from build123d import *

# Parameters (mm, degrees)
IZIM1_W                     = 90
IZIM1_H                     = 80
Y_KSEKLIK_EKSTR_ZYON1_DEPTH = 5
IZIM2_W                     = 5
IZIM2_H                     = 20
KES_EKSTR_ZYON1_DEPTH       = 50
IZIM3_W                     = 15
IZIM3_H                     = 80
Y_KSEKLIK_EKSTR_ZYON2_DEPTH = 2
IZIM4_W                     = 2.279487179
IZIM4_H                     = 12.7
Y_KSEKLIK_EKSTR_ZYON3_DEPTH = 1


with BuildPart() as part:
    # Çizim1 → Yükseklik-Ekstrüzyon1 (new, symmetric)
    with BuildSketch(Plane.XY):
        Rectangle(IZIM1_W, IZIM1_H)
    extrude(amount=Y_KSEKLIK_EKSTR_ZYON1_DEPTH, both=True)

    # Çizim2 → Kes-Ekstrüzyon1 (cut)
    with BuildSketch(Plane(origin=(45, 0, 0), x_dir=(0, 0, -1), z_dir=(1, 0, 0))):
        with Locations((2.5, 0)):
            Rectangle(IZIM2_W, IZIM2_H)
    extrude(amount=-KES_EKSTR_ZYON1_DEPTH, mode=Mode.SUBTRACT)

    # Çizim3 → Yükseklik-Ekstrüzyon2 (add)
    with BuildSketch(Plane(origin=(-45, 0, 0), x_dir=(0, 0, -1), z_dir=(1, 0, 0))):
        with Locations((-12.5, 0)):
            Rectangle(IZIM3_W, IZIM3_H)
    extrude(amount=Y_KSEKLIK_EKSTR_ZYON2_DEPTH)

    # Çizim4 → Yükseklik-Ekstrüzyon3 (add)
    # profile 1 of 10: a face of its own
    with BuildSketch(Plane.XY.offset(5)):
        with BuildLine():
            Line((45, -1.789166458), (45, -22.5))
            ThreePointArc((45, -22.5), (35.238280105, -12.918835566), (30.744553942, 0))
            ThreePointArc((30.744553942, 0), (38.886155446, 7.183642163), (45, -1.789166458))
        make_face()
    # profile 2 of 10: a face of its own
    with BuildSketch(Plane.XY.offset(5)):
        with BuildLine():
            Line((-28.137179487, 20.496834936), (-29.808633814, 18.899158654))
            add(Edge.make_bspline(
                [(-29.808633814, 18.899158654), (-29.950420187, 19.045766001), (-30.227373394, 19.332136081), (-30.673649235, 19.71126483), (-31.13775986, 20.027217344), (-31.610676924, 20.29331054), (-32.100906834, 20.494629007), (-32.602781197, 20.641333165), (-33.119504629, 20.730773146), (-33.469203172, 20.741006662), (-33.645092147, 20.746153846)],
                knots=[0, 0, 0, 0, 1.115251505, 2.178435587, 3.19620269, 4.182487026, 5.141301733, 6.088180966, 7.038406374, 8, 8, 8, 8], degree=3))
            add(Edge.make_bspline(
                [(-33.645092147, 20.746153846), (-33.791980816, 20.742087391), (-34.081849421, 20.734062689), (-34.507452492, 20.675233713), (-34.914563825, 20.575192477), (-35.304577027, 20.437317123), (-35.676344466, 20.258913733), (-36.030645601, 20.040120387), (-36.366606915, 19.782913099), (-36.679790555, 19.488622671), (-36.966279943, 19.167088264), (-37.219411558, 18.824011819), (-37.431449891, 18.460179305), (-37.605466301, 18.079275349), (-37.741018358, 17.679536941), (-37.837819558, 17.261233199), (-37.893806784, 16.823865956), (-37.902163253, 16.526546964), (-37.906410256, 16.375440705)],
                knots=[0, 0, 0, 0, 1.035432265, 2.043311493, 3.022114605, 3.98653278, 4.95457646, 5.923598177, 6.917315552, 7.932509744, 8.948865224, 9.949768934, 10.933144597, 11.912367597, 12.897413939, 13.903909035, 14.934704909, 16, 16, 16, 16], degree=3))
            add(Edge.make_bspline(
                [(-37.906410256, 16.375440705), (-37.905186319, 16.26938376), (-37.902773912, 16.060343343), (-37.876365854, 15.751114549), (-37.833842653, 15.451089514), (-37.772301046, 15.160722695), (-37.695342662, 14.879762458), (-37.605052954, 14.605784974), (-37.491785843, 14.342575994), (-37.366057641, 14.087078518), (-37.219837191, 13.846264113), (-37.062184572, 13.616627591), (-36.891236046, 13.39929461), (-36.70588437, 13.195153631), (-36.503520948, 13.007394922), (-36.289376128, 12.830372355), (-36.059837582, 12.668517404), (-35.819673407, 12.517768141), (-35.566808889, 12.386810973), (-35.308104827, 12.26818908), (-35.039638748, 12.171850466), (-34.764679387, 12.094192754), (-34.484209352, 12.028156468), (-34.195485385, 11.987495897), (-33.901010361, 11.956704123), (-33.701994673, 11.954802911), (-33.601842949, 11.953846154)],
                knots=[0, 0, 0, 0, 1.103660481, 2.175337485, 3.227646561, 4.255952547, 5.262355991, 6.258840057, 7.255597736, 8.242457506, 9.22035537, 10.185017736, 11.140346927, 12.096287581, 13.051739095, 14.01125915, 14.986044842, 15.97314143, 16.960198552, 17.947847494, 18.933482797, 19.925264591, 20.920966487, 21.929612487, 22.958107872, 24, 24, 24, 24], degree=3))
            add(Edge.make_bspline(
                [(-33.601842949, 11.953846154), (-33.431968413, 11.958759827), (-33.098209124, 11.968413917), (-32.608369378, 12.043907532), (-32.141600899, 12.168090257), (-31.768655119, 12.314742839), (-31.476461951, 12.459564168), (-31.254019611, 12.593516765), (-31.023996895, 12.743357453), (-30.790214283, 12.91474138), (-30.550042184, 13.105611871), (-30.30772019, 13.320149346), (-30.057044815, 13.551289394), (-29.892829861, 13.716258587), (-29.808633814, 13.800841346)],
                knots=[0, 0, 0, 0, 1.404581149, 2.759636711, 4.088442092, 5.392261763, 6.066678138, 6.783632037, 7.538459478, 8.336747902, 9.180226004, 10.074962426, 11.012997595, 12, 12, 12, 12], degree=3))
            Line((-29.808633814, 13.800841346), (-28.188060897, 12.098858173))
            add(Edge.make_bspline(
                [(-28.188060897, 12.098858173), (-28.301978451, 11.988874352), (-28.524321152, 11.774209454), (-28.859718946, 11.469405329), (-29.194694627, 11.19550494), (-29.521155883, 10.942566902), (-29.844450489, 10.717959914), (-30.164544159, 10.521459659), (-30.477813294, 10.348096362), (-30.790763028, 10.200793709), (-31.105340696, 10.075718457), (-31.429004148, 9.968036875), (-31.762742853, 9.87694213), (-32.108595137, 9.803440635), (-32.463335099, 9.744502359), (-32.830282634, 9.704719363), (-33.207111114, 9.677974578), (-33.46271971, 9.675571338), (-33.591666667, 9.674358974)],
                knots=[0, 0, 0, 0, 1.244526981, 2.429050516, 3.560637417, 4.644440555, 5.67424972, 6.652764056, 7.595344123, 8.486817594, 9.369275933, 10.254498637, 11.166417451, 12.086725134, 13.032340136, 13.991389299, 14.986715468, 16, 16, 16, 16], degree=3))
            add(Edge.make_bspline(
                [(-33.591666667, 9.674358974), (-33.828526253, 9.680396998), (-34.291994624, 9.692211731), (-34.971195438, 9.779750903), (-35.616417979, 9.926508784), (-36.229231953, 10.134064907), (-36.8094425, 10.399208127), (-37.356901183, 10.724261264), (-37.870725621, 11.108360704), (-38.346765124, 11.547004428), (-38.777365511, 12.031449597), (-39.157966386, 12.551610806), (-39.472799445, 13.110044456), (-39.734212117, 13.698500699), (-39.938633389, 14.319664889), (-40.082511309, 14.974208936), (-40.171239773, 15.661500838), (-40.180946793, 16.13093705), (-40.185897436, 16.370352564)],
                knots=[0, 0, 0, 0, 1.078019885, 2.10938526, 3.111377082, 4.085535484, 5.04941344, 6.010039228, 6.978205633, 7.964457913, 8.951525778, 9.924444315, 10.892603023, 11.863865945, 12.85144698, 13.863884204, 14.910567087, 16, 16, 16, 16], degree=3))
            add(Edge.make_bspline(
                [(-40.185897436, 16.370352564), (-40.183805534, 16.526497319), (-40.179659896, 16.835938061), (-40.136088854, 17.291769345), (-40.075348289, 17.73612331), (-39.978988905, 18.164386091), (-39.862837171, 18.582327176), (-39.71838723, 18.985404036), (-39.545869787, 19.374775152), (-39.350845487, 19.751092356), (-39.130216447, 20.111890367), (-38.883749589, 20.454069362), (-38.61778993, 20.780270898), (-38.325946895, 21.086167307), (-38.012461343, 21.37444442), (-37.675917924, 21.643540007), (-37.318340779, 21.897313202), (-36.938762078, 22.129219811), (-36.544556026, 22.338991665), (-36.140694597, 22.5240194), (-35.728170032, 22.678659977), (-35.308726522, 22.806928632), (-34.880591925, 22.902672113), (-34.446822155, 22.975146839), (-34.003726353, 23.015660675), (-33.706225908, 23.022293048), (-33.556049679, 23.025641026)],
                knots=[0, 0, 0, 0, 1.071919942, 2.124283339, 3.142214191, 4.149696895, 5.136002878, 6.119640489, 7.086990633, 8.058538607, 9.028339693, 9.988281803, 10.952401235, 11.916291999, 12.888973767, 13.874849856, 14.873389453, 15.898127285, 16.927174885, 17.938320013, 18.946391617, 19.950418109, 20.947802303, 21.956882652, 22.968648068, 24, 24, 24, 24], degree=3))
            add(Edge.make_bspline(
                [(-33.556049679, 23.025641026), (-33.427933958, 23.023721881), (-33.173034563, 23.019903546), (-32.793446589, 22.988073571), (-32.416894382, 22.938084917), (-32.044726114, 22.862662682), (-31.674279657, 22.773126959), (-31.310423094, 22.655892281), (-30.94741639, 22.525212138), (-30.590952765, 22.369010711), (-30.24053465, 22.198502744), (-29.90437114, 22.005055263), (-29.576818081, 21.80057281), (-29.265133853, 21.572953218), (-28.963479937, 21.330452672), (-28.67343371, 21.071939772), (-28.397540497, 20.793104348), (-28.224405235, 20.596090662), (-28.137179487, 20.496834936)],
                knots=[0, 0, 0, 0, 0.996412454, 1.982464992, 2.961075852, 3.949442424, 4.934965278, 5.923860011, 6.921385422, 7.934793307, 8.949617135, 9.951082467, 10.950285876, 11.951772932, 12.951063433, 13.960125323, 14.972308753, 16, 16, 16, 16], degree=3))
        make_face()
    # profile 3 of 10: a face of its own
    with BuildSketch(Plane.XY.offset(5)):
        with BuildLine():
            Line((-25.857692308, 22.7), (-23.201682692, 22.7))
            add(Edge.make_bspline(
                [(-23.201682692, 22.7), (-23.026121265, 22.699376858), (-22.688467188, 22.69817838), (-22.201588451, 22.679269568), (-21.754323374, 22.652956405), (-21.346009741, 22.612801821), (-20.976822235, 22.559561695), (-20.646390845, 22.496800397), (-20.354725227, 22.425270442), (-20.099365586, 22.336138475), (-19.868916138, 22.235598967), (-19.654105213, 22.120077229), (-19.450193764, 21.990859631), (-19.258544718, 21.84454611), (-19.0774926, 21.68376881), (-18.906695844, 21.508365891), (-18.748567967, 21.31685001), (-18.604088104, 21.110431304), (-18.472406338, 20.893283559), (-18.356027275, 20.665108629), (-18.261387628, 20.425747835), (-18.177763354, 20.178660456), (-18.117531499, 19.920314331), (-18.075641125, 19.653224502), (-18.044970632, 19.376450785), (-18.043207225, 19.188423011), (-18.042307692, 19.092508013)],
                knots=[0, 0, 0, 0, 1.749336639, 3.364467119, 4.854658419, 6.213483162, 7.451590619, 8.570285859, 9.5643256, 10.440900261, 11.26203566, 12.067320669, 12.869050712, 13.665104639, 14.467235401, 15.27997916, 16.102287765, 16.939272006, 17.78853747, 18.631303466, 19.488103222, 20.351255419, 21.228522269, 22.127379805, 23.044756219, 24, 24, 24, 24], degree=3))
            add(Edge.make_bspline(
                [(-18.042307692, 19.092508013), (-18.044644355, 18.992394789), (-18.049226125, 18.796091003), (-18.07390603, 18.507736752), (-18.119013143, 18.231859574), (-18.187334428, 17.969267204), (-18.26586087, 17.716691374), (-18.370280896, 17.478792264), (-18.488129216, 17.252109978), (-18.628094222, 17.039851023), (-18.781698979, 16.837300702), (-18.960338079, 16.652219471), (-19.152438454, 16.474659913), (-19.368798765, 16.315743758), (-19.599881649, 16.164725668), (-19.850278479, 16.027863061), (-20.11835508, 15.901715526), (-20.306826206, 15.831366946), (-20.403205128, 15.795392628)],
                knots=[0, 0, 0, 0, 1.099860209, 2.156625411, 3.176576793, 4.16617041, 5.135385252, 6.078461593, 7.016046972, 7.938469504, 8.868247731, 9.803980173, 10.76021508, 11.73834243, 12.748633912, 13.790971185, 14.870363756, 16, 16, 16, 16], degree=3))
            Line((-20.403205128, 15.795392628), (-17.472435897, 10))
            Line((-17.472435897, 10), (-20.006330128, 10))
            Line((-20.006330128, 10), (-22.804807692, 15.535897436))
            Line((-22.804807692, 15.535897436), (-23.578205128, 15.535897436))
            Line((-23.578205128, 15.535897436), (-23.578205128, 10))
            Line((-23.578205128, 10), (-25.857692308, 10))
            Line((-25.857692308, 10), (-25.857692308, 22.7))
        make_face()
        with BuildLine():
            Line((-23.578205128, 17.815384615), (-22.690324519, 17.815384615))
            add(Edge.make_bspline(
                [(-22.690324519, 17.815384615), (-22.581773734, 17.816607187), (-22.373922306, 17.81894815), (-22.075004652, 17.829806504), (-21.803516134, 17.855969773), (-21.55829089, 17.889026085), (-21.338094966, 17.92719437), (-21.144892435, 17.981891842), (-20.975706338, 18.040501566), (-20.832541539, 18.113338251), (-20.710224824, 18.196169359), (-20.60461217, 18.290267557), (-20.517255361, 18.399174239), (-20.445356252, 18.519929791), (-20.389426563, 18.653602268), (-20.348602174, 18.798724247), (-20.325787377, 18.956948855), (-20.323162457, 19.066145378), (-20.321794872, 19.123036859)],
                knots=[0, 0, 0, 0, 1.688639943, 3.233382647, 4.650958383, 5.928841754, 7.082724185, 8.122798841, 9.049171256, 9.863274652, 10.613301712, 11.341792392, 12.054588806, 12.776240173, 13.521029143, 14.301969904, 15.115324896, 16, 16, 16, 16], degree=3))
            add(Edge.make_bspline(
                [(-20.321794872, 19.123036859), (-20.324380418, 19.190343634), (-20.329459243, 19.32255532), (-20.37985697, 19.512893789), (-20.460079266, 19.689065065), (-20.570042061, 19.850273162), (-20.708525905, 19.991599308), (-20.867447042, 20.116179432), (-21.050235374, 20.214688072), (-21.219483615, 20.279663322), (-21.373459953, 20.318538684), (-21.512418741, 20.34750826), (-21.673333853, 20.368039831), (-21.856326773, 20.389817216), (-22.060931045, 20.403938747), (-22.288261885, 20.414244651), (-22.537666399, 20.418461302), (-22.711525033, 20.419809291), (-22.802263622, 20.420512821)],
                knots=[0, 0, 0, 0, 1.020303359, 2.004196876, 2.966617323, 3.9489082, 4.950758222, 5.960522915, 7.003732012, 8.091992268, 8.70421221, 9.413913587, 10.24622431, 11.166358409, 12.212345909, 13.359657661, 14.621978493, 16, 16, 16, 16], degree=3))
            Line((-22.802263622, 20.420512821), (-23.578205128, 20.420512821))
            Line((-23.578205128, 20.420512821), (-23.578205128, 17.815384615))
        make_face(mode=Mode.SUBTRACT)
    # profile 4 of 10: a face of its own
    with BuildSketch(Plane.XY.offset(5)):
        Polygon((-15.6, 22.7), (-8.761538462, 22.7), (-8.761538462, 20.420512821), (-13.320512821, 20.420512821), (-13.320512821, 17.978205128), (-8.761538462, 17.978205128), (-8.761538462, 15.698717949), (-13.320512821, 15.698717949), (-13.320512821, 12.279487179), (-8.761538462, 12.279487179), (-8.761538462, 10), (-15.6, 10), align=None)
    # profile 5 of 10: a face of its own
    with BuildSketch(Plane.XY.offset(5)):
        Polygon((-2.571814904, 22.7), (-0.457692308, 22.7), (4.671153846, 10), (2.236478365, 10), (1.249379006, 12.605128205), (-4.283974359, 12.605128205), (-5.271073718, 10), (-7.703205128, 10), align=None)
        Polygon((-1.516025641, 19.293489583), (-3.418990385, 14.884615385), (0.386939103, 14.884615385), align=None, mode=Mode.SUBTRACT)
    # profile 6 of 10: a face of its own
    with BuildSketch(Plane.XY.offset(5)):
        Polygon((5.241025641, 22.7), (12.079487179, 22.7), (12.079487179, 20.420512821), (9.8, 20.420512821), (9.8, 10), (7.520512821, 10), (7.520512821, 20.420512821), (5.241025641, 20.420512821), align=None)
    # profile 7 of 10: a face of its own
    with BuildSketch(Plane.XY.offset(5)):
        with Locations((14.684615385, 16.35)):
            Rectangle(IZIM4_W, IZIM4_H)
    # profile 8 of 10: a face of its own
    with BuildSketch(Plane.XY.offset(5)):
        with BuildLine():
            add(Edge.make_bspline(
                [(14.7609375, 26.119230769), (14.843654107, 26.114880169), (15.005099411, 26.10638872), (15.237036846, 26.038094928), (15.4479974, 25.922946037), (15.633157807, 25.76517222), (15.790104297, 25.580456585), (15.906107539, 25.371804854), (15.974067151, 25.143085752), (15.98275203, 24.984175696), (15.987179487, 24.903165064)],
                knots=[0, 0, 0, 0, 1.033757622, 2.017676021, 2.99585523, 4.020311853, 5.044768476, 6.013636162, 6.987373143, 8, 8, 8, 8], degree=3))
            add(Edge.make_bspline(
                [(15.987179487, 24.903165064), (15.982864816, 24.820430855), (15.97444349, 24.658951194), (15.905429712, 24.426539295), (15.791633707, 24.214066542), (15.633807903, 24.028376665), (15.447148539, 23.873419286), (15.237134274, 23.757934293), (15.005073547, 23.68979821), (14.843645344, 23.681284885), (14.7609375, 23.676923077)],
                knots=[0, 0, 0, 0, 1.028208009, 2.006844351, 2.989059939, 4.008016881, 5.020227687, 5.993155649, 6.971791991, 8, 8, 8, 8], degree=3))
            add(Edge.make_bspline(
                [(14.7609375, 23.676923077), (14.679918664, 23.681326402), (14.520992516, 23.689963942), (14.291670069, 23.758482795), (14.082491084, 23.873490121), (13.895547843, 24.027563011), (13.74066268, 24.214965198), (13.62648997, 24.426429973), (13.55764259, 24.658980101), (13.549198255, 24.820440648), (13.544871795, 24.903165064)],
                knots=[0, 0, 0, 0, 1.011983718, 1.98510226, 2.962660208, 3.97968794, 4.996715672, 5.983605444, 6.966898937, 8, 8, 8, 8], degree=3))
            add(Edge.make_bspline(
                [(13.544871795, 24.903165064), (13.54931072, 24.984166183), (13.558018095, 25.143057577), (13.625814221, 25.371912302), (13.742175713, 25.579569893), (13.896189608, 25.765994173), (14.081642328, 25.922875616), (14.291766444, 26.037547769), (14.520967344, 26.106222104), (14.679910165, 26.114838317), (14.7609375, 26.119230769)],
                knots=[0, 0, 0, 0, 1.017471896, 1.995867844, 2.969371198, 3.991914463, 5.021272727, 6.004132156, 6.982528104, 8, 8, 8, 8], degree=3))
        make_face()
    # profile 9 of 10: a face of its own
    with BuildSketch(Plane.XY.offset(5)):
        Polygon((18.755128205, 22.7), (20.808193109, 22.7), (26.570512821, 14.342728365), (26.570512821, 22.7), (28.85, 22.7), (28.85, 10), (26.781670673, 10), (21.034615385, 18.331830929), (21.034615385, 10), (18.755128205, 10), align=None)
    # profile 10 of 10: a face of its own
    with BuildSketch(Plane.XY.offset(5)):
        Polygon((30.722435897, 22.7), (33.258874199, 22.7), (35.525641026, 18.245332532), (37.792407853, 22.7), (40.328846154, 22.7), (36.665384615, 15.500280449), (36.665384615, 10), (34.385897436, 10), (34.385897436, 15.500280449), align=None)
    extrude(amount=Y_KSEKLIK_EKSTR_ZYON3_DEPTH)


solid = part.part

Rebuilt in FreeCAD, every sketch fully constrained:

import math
import FreeCAD as App
import Part
import Sketcher
Q = App.Units.Quantity


def add_polygon(sketch, points):
    """Adds a closed chain of lines whose ends are joined by coincident constraints."""
    first, n = sketch.GeometryCount, len(points)
    for a, b in zip(points, points[1:] + points[:1]):
        sketch.addGeometry(Part.LineSegment(App.Vector(*a, 0), App.Vector(*b, 0)), False)
    for i in range(n):
        sketch.addConstraint(Sketcher.Constraint("Coincident", first + i, 2, first + (i + 1) % n, 1))

doc = App.newDocument("Part")
params = doc.addObject("Spreadsheet::Sheet", "Params")
for row, (alias, value) in enumerate([
    ("sketch1_width", "90 mm"),
    ("sketch1_height", "80 mm"),
    ("pad1_length", "10 mm"),
    ("sketch2_width", "20 mm"),
    ("sketch2_height", "5 mm"),
    ("pocket1_length", "50 mm"),
    ("sketch3_width", "80 mm"),
    ("sketch3_height", "15 mm"),
    ("pad2_length", "2 mm"),
    ("sketch4_radius", "30 mm"),
    ("sketch4_radius2", "7.24 mm"),
    ("sketch4_height", "12.7 mm"),
    ("sketch4_height2", "12.7 mm"),
    ("sketch4_height3", "12.7 mm"),
    ("pad3_length", "1 mm"),
], start=1):
    params.set(f"A{row}", alias)
    params.set(f"B{row}", "=" + value)
    params.setAlias(f"B{row}", alias)

body = doc.addObject("PartDesign::Body", "Body")

# Sketch on XY plane
sketch1 = doc.addObject("Sketcher::SketchObject", "Sketch")
body.addObject(sketch1)
sketch1.AttachmentSupport = (doc.XY_Plane, [""])
sketch1.MapMode = "FlatFace"
add_polygon(sketch1, [(-45, 40), (-45, -40), (45, -40), (45, 40)])  # lines 0-3
sketch1.addConstraint([
    Sketcher.Constraint("Vertical", 0),
    Sketcher.Constraint("Horizontal", 1),
    Sketcher.Constraint("Vertical", 2),
    Sketcher.Constraint("Horizontal", 3),
    Sketcher.Constraint("Symmetric", 0, 2, 2, 2, -1, 1),
    Sketcher.Constraint("DistanceX", 1, 1, 1, 2, Q("90 mm")),
    Sketcher.Constraint("DistanceY", 0, 2, 0, 1, Q("80 mm")),
])
sketch1.setExpression("Constraints[9]", "Params.sketch1_width")
sketch1.setExpression("Constraints[10]", "Params.sketch1_height")
pad1 = doc.addObject("PartDesign::Pad", "Pad")
body.addObject(pad1)
pad1.Profile = sketch1
pad1.setExpression("Length", "Params.pad1_length")
pad1.Midplane = True

# Sketch on YZ plane
sketch2 = doc.addObject("Sketcher::SketchObject", "Sketch001")
body.addObject(sketch2)
sketch2.AttachmentSupport = (doc.YZ_Plane, [""])
sketch2.MapMode = "FlatFace"
sketch2.AttachmentOffset = App.Placement(App.Vector(0, 0, 45), App.Rotation())
add_polygon(sketch2, [(10, 0), (-10, 0), (-10, -5), (10, -5)])  # lines 0-3
sketch2.addConstraint([
    Sketcher.Constraint("Horizontal", 0),
    Sketcher.Constraint("Vertical", 1),
    Sketcher.Constraint("Horizontal", 2),
    Sketcher.Constraint("Vertical", 3),
    Sketcher.Constraint("Symmetric", 0, 2, 3, 2, -1, 1),
    Sketcher.Constraint("DistanceX", 0, 2, 0, 1, Q("20 mm")),
    Sketcher.Constraint("DistanceY", 1, 2, 1, 1, Q("5 mm")),
])
sketch2.setExpression("Constraints[9]", "Params.sketch2_width")
sketch2.setExpression("Constraints[10]", "Params.sketch2_height")
pocket1 = doc.addObject("PartDesign::Pocket", "Pocket")
body.addObject(pocket1)
pocket1.Profile = sketch2
pocket1.setExpression("Length", "Params.pocket1_length")

# Sketch on YZ plane
sketch3 = doc.addObject("Sketcher::SketchObject", "Sketch002")
body.addObject(sketch3)
sketch3.AttachmentSupport = (doc.YZ_Plane, [""])
sketch3.MapMode = "FlatFace"
sketch3.AttachmentOffset = App.Placement(App.Vector(0, 0, -45), App.Rotation())
add_polygon(sketch3, [(40, 20), (-40, 20), (-40, 5), (40, 5)])  # lines 0-3
sketch3.addConstraint([
    Sketcher.Constraint("Horizontal", 0),
    Sketcher.Constraint("Vertical", 1),
    Sketcher.Constraint("Horizontal", 2),
    Sketcher.Constraint("Vertical", 3),
    Sketcher.Constraint("DistanceX", 0, 2, 0, 1, Q("80 mm")),
    Sketcher.Constraint("DistanceY", 1, 2, 1, 1, Q("15 mm")),
    Sketcher.Constraint("DistanceX", 0, 2, -1, 1, Q("40 mm")),
    Sketcher.Constraint("DistanceY", -1, 1, 0, 2, Q("20 mm")),
])
sketch3.setExpression("Constraints[8]", "Params.sketch3_width")
sketch3.setExpression("Constraints[9]", "Params.sketch3_height")
pad2 = doc.addObject("PartDesign::Pad", "Pad001")
body.addObject(pad2)
pad2.Profile = sketch3
pad2.setExpression("Length", "Params.pad2_length")

# Sketch on XY plane
sketch4 = doc.addObject("Sketcher::SketchObject", "Sketch003")
body.addObject(sketch4)
sketch4.AttachmentSupport = (doc.XY_Plane, [""])
sketch4.MapMode = "FlatFace"
sketch4.AttachmentOffset = App.Placement(App.Vector(0, 0, 5), App.Rotation())
sketch4.addGeometry(Part.LineSegment(App.Vector(45, -22.5, 0), App.Vector(45, -1.789166, 0)), False)  # 0
sketch4.addGeometry(Part.ArcOfCircle(Part.Circle(App.Vector(37.984554, 0, 0), App.Vector(0, 0, 1), 7.24), math.radians(-14.307298), math.radians(180)), False)  # 1
sketch4.addGeometry(Part.ArcOfCircle(Part.Circle(App.Vector(60.580079, 3.137105, 0), App.Vector(0, 0, 1), 30), math.radians(-173.997598), math.radians(-121.287721)), False)  # 2
sketch4.addGeometry(Part.LineSegment(App.Vector(-29.808634, 18.899159, 0), App.Vector(-28.137179, 20.496835, 0)), False)  # 3
sketch4.addGeometry(Part.BSplineCurve([App.Vector(-33.55605, 23.025641, 0), App.Vector(-33.427934, 23.023722, 0), App.Vector(-33.173035, 23.019904, 0), App.Vector(-32.793447, 22.988074, 0), App.Vector(-32.416894, 22.938085, 0), App.Vector(-32.044726, 22.862663, 0), App.Vector(-31.67428, 22.773127, 0), App.Vector(-31.310423, 22.655892, 0), App.Vector(-30.947416, 22.525212, 0), App.Vector(-30.590953, 22.369011, 0), App.Vector(-30.240535, 22.198503, 0), App.Vector(-29.904371, 22.005055, 0), App.Vector(-29.576818, 21.800573, 0), App.Vector(-29.265134, 21.572953, 0), App.Vector(-28.96348, 21.330453, 0), App.Vector(-28.673434, 21.07194, 0), App.Vector(-28.39754, 20.793104, 0), App.Vector(-28.224405, 20.596091, 0), App.Vector(-28.137179, 20.496835, 0)], [4, 1, 1, 1, 1, 1, 1, 1, 1, 1, 1, 1, 1, 1, 1, 1, 4], [0, 0.996412454, 1.982464992, 2.961075852, 3.949442424, 4.934965278, 5.923860011, 6.921385422, 7.934793307, 8.949617135, 9.951082467, 10.950285876, 11.951772932, 12.951063433, 13.960125323, 14.972308753, 16], False, 3, [1, 1, 1, 1, 1, 1, 1, 1, 1, 1, 1, 1, 1, 1, 1, 1, 1, 1, 1], False), False)  # 4
sketch4.addGeometry(Part.BSplineCurve([App.Vector(-40.185897, 16.370353, 0), App.Vector(-40.183806, 16.526497, 0), App.Vector(-40.17966, 16.835938, 0), App.Vector(-40.136089, 17.291769, 0), App.Vector(-40.075348, 17.736123, 0), App.Vector(-39.978989, 18.164386, 0), App.Vector(-39.862837, 18.582327, 0), App.Vector(-39.718387, 18.985404, 0), App.Vector(-39.54587, 19.374775, 0), App.Vector(-39.350845, 19.751092, 0), App.Vector(-39.130216, 20.11189, 0), App.Vector(-38.88375, 20.454069, 0), App.Vector(-38.61779, 20.780271, 0), App.Vector(-38.325947, 21.086167, 0), App.Vector(-38.012461, 21.374444, 0), App.Vector(-37.675918, 21.64354, 0), App.Vector(-37.318341, 21.897313, 0), App.Vector(-36.938762, 22.12922, 0), App.Vector(-36.544556, 22.338992, 0), App.Vector(-36.140695, 22.524019, 0), App.Vector(-35.72817, 22.67866, 0), App.Vector(-35.308727, 22.806929, 0), App.Vector(-34.880592, 22.902672, 0), App.Vector(-34.446822, 22.975147, 0), App.Vector(-34.003726, 23.015661, 0), App.Vector(-33.706226, 23.022293, 0), App.Vector(-33.55605, 23.025641, 0)], [4, 1, 1, 1, 1, 1, 1, 1, 1, 1, 1, 1, 1, 1, 1, 1, 1, 1, 1, 1, 1, 1, 1, 1, 4], [0, 1.071919942, 2.124283339, 3.142214191, 4.149696895, 5.136002878, 6.119640489, 7.086990633, 8.058538607, 9.028339693, 9.988281803, 10.952401235, 11.916291999, 12.888973767, 13.874849856, 14.873389453, 15.898127285, 16.927174885, 17.938320013, 18.946391617, 19.950418109, 20.947802303, 21.956882652, 22.968648068, 24], False, 3, [1, 1, 1, 1, 1, 1, 1, 1, 1, 1, 1, 1, 1, 1, 1, 1, 1, 1, 1, 1, 1, 1, 1, 1, 1, 1, 1], False), False)  # 5
sketch4.addGeometry(Part.BSplineCurve([App.Vector(-33.591667, 9.674359, 0), App.Vector(-33.828526, 9.680397, 0), App.Vector(-34.291995, 9.692212, 0), App.Vector(-34.971195, 9.779751, 0), App.Vector(-35.616418, 9.926509, 0), App.Vector(-36.229232, 10.134065, 0), App.Vector(-36.809443, 10.399208, 0), App.Vector(-37.356901, 10.724261, 0), App.Vector(-37.870726, 11.108361, 0), App.Vector(-38.346765, 11.547004, 0), App.Vector(-38.777366, 12.03145, 0), App.Vector(-39.157966, 12.551611, 0), App.Vector(-39.472799, 13.110044, 0), App.Vector(-39.734212, 13.698501, 0), App.Vector(-39.938633, 14.319665, 0), App.Vector(-40.082511, 14.974209, 0), App.Vector(-40.17124, 15.661501, 0), App.Vector(-40.180947, 16.130937, 0), App.Vector(-40.185897, 16.370353, 0)], [4, 1, 1, 1, 1, 1, 1, 1, 1, 1, 1, 1, 1, 1, 1, 1, 4], [0, 1.078019885, 2.10938526, 3.111377082, 4.085535484, 5.04941344, 6.010039228, 6.978205633, 7.964457913, 8.951525778, 9.924444315, 10.892603023, 11.863865945, 12.85144698, 13.863884204, 14.910567087, 16], False, 3, [1, 1, 1, 1, 1, 1, 1, 1, 1, 1, 1, 1, 1, 1, 1, 1, 1, 1, 1], False), False)  # 6
sketch4.addGeometry(Part.BSplineCurve([App.Vector(-28.188061, 12.098858, 0), App.Vector(-28.301978, 11.988874, 0), App.Vector(-28.524321, 11.774209, 0), App.Vector(-28.859719, 11.469405, 0), App.Vector(-29.194695, 11.195505, 0), App.Vector(-29.521156, 10.942567, 0), App.Vector(-29.84445, 10.71796, 0), App.Vector(-30.164544, 10.52146, 0), App.Vector(-30.477813, 10.348096, 0), App.Vector(-30.790763, 10.200794, 0), App.Vector(-31.105341, 10.075718, 0), App.Vector(-31.429004, 9.968037, 0), App.Vector(-31.762743, 9.876942, 0), App.Vector(-32.108595, 9.803441, 0), App.Vector(-32.463335, 9.744502, 0), App.Vector(-32.830283, 9.704719, 0), App.Vector(-33.207111, 9.677975, 0), App.Vector(-33.46272, 9.675571, 0), App.Vector(-33.591667, 9.674359, 0)], [4, 1, 1, 1, 1, 1, 1, 1, 1, 1, 1, 1, 1, 1, 1, 1, 4], [0, 1.244526981, 2.429050516, 3.560637417, 4.644440555, 5.67424972, 6.652764056, 7.595344123, 8.486817594, 9.369275933, 10.254498637, 11.166417451, 12.086725134, 13.032340136, 13.991389299, 14.986715468, 16], False, 3, [1, 1, 1, 1, 1, 1, 1, 1, 1, 1, 1, 1, 1, 1, 1, 1, 1, 1, 1], False), False)  # 7
sketch4.addGeometry(Part.LineSegment(App.Vector(-28.188061, 12.098858, 0), App.Vector(-29.808634, 13.800841, 0)), False)  # 8
sketch4.addGeometry(Part.BSplineCurve([App.Vector(-33.601843, 11.953846, 0), App.Vector(-33.431968, 11.95876, 0), App.Vector(-33.098209, 11.968414, 0), App.Vector(-32.608369, 12.043908, 0), App.Vector(-32.141601, 12.16809, 0), App.Vector(-31.768655, 12.314743, 0), App.Vector(-31.476462, 12.459564, 0), App.Vector(-31.25402, 12.593517, 0), App.Vector(-31.023997, 12.743357, 0), App.Vector(-30.790214, 12.914741, 0), App.Vector(-30.550042, 13.105612, 0), App.Vector(-30.30772, 13.320149, 0), App.Vector(-30.057045, 13.551289, 0), App.Vector(-29.89283, 13.716259, 0), App.Vector(-29.808634, 13.800841, 0)], [4, 1, 1, 1, 1, 1, 1, 1, 1, 1, 1, 1, 4], [0, 1.404581149, 2.759636711, 4.088442092, 5.392261763, 6.066678138, 6.783632037, 7.538459478, 8.336747902, 9.180226004, 10.074962426, 11.012997595, 12], False, 3, [1, 1, 1, 1, 1, 1, 1, 1, 1, 1, 1, 1, 1, 1, 1], False), False)  # 9
sketch4.addGeometry(Part.BSplineCurve([App.Vector(-37.90641, 16.375441, 0), App.Vector(-37.905186, 16.269384, 0), App.Vector(-37.902774, 16.060343, 0), App.Vector(-37.876366, 15.751115, 0), App.Vector(-37.833843, 15.45109, 0), App.Vector(-37.772301, 15.160723, 0), App.Vector(-37.695343, 14.879762, 0), App.Vector(-37.605053, 14.605785, 0), App.Vector(-37.491786, 14.342576, 0), App.Vector(-37.366058, 14.087079, 0), App.Vector(-37.219837, 13.846264, 0), App.Vector(-37.062185, 13.616628, 0), App.Vector(-36.891236, 13.399295, 0), App.Vector(-36.705884, 13.195154, 0), App.Vector(-36.503521, 13.007395, 0), App.Vector(-36.289376, 12.830372, 0), App.Vector(-36.059838, 12.668517, 0), App.Vector(-35.819673, 12.517768, 0), App.Vector(-35.566809, 12.386811, 0), App.Vector(-35.308105, 12.268189, 0), App.Vector(-35.039639, 12.17185, 0), App.Vector(-34.764679, 12.094193, 0), App.Vector(-34.484209, 12.028156, 0), App.Vector(-34.195485, 11.987496, 0), App.Vector(-33.90101, 11.956704, 0), App.Vector(-33.701995, 11.954803, 0), App.Vector(-33.601843, 11.953846, 0)], [4, 1, 1, 1, 1, 1, 1, 1, 1, 1, 1, 1, 1, 1, 1, 1, 1, 1, 1, 1, 1, 1, 1, 1, 4], [0, 1.103660481, 2.175337485, 3.227646561, 4.255952547, 5.262355991, 6.258840057, 7.255597736, 8.242457506, 9.22035537, 10.185017736, 11.140346927, 12.096287581, 13.051739095, 14.01125915, 14.986044842, 15.97314143, 16.960198552, 17.947847494, 18.933482797, 19.925264591, 20.920966487, 21.929612487, 22.958107872, 24], False, 3, [1, 1, 1, 1, 1, 1, 1, 1, 1, 1, 1, 1, 1, 1, 1, 1, 1, 1, 1, 1, 1, 1, 1, 1, 1, 1, 1], False), False)  # 10
sketch4.addGeometry(Part.BSplineCurve([App.Vector(-33.645092, 20.746154, 0), App.Vector(-33.791981, 20.742087, 0), App.Vector(-34.081849, 20.734063, 0), App.Vector(-34.507452, 20.675234, 0), App.Vector(-34.914564, 20.575192, 0), App.Vector(-35.304577, 20.437317, 0), App.Vector(-35.676344, 20.258914, 0), App.Vector(-36.030646, 20.04012, 0), App.Vector(-36.366607, 19.782913, 0), App.Vector(-36.679791, 19.488623, 0), App.Vector(-36.96628, 19.167088, 0), App.Vector(-37.219412, 18.824012, 0), App.Vector(-37.43145, 18.460179, 0), App.Vector(-37.605466, 18.079275, 0), App.Vector(-37.741018, 17.679537, 0), App.Vector(-37.83782, 17.261233, 0), App.Vector(-37.893807, 16.823866, 0), App.Vector(-37.902163, 16.526547, 0), App.Vector(-37.90641, 16.375441, 0)], [4, 1, 1, 1, 1, 1, 1, 1, 1, 1, 1, 1, 1, 1, 1, 1, 4], [0, 1.035432265, 2.043311493, 3.022114605, 3.98653278, 4.95457646, 5.923598177, 6.917315552, 7.932509744, 8.948865224, 9.949768934, 10.933144597, 11.912367597, 12.897413939, 13.903909035, 14.934704909, 16], False, 3, [1, 1, 1, 1, 1, 1, 1, 1, 1, 1, 1, 1, 1, 1, 1, 1, 1, 1, 1], False), False)  # 11
sketch4.addGeometry(Part.BSplineCurve([App.Vector(-29.808634, 18.899159, 0), App.Vector(-29.95042, 19.045766, 0), App.Vector(-30.227373, 19.332136, 0), App.Vector(-30.673649, 19.711265, 0), App.Vector(-31.13776, 20.027217, 0), App.Vector(-31.610677, 20.293311, 0), App.Vector(-32.100907, 20.494629, 0), App.Vector(-32.602781, 20.641333, 0), App.Vector(-33.119505, 20.730773, 0), App.Vector(-33.469203, 20.741007, 0), App.Vector(-33.645092, 20.746154, 0)], [4, 1, 1, 1, 1, 1, 1, 1, 4], [0, 1.115251505, 2.178435587, 3.19620269, 4.182487026, 5.141301733, 6.088180966, 7.038406374, 8], False, 3, [1, 1, 1, 1, 1, 1, 1, 1, 1, 1, 1], False), False)  # 12
sketch4.addGeometry(Part.LineSegment(App.Vector(-23.201683, 22.7, 0), App.Vector(-25.857692, 22.7, 0)), False)  # 13
sketch4.addGeometry(Part.LineSegment(App.Vector(-25.857692, 22.7, 0), App.Vector(-25.857692, 10, 0)), False)  # 14
sketch4.addGeometry(Part.LineSegment(App.Vector(-25.857692, 10, 0), App.Vector(-23.578205, 10, 0)), False)  # 15
sketch4.addGeometry(Part.LineSegment(App.Vector(-23.578205, 10, 0), App.Vector(-23.578205, 15.535897, 0)), False)  # 16
sketch4.addGeometry(Part.LineSegment(App.Vector(-23.578205, 15.535897, 0), App.Vector(-22.804808, 15.535897, 0)), False)  # 17
sketch4.addGeometry(Part.LineSegment(App.Vector(-22.804808, 15.535897, 0), App.Vector(-20.00633, 10, 0)), False)  # 18
sketch4.addGeometry(Part.LineSegment(App.Vector(-20.00633, 10, 0), App.Vector(-17.472436, 10, 0)), False)  # 19
sketch4.addGeometry(Part.LineSegment(App.Vector(-17.472436, 10, 0), App.Vector(-20.403205, 15.795393, 0)), False)  # 20
sketch4.addGeometry(Part.BSplineCurve([App.Vector(-18.042308, 19.092508, 0), App.Vector(-18.044644, 18.992395, 0), App.Vector(-18.049226, 18.796091, 0), App.Vector(-18.073906, 18.507737, 0), App.Vector(-18.119013, 18.23186, 0), App.Vector(-18.187334, 17.969267, 0), App.Vector(-18.265861, 17.716691, 0), App.Vector(-18.370281, 17.478792, 0), App.Vector(-18.488129, 17.25211, 0), App.Vector(-18.628094, 17.039851, 0), App.Vector(-18.781699, 16.837301, 0), App.Vector(-18.960338, 16.652219, 0), App.Vector(-19.152438, 16.47466, 0), App.Vector(-19.368799, 16.315744, 0), App.Vector(-19.599882, 16.164726, 0), App.Vector(-19.850278, 16.027863, 0), App.Vector(-20.118355, 15.901716, 0), App.Vector(-20.306826, 15.831367, 0), App.Vector(-20.403205, 15.795393, 0)], [4, 1, 1, 1, 1, 1, 1, 1, 1, 1, 1, 1, 1, 1, 1, 1, 4], [0, 1.099860209, 2.156625411, 3.176576793, 4.16617041, 5.135385252, 6.078461593, 7.016046972, 7.938469504, 8.868247731, 9.803980173, 10.76021508, 11.73834243, 12.748633912, 13.790971185, 14.870363756, 16], False, 3, [1, 1, 1, 1, 1, 1, 1, 1, 1, 1, 1, 1, 1, 1, 1, 1, 1, 1, 1], False), False)  # 21
sketch4.addGeometry(Part.BSplineCurve([App.Vector(-23.201683, 22.7, 0), App.Vector(-23.026121, 22.699377, 0), App.Vector(-22.688467, 22.698178, 0), App.Vector(-22.201588, 22.67927, 0), App.Vector(-21.754323, 22.652956, 0), App.Vector(-21.34601, 22.612802, 0), App.Vector(-20.976822, 22.559562, 0), App.Vector(-20.646391, 22.4968, 0), App.Vector(-20.354725, 22.42527, 0), App.Vector(-20.099366, 22.336138, 0), App.Vector(-19.868916, 22.235599, 0), App.Vector(-19.654105, 22.120077, 0), App.Vector(-19.450194, 21.99086, 0), App.Vector(-19.258545, 21.844546, 0), App.Vector(-19.077493, 21.683769, 0), App.Vector(-18.906696, 21.508366, 0), App.Vector(-18.748568, 21.31685, 0), App.Vector(-18.604088, 21.110431, 0), App.Vector(-18.472406, 20.893284, 0), App.Vector(-18.356027, 20.665109, 0), App.Vector(-18.261388, 20.425748, 0), App.Vector(-18.177763, 20.17866, 0), App.Vector(-18.117531, 19.920314, 0), App.Vector(-18.075641, 19.653225, 0), App.Vector(-18.044971, 19.376451, 0), App.Vector(-18.043207, 19.188423, 0), App.Vector(-18.042308, 19.092508, 0)], [4, 1, 1, 1, 1, 1, 1, 1, 1, 1, 1, 1, 1, 1, 1, 1, 1, 1, 1, 1, 1, 1, 1, 1, 4], [0, 1.749336639, 3.364467119, 4.854658419, 6.213483162, 7.451590619, 8.570285859, 9.5643256, 10.440900261, 11.26203566, 12.067320669, 12.869050712, 13.665104639, 14.467235401, 15.27997916, 16.102287765, 16.939272006, 17.78853747, 18.631303466, 19.488103222, 20.351255419, 21.228522269, 22.127379805, 23.044756219, 24], False, 3, [1, 1, 1, 1, 1, 1, 1, 1, 1, 1, 1, 1, 1, 1, 1, 1, 1, 1, 1, 1, 1, 1, 1, 1, 1, 1, 1], False), False)  # 22
sketch4.addGeometry(Part.LineSegment(App.Vector(-23.578205, 17.815385, 0), App.Vector(-23.578205, 20.420513, 0)), False)  # 23
sketch4.addGeometry(Part.LineSegment(App.Vector(-23.578205, 20.420513, 0), App.Vector(-22.802264, 20.420513, 0)), False)  # 24
sketch4.addGeometry(Part.BSplineCurve([App.Vector(-20.321795, 19.123037, 0), App.Vector(-20.32438, 19.190344, 0), App.Vector(-20.329459, 19.322555, 0), App.Vector(-20.379857, 19.512894, 0), App.Vector(-20.460079, 19.689065, 0), App.Vector(-20.570042, 19.850273, 0), App.Vector(-20.708526, 19.991599, 0), App.Vector(-20.867447, 20.116179, 0), App.Vector(-21.050235, 20.214688, 0), App.Vector(-21.219484, 20.279663, 0), App.Vector(-21.37346, 20.318539, 0), App.Vector(-21.512419, 20.347508, 0), App.Vector(-21.673334, 20.36804, 0), App.Vector(-21.856327, 20.389817, 0), App.Vector(-22.060931, 20.403939, 0), App.Vector(-22.288262, 20.414245, 0), App.Vector(-22.537666, 20.418461, 0), App.Vector(-22.711525, 20.419809, 0), App.Vector(-22.802264, 20.420513, 0)], [4, 1, 1, 1, 1, 1, 1, 1, 1, 1, 1, 1, 1, 1, 1, 1, 4], [0, 1.020303359, 2.004196876, 2.966617323, 3.9489082, 4.950758222, 5.960522915, 7.003732012, 8.091992268, 8.70421221, 9.413913587, 10.24622431, 11.166358409, 12.212345909, 13.359657661, 14.621978493, 16], False, 3, [1, 1, 1, 1, 1, 1, 1, 1, 1, 1, 1, 1, 1, 1, 1, 1, 1, 1, 1], False), False)  # 25
sketch4.addGeometry(Part.BSplineCurve([App.Vector(-22.690325, 17.815385, 0), App.Vector(-22.581774, 17.816607, 0), App.Vector(-22.373922, 17.818948, 0), App.Vector(-22.075005, 17.829807, 0), App.Vector(-21.803516, 17.85597, 0), App.Vector(-21.558291, 17.889026, 0), App.Vector(-21.338095, 17.927194, 0), App.Vector(-21.144892, 17.981892, 0), App.Vector(-20.975706, 18.040502, 0), App.Vector(-20.832542, 18.113338, 0), App.Vector(-20.710225, 18.196169, 0), App.Vector(-20.604612, 18.290268, 0), App.Vector(-20.517255, 18.399174, 0), App.Vector(-20.445356, 18.51993, 0), App.Vector(-20.389427, 18.653602, 0), App.Vector(-20.348602, 18.798724, 0), App.Vector(-20.325787, 18.956949, 0), App.Vector(-20.323162, 19.066145, 0), App.Vector(-20.321795, 19.123037, 0)], [4, 1, 1, 1, 1, 1, 1, 1, 1, 1, 1, 1, 1, 1, 1, 1, 4], [0, 1.688639943, 3.233382647, 4.650958383, 5.928841754, 7.082724185, 8.122798841, 9.049171256, 9.863274652, 10.613301712, 11.341792392, 12.054588806, 12.776240173, 13.521029143, 14.301969904, 15.115324896, 16], False, 3, [1, 1, 1, 1, 1, 1, 1, 1, 1, 1, 1, 1, 1, 1, 1, 1, 1, 1, 1], False), False)  # 26
sketch4.addGeometry(Part.LineSegment(App.Vector(-22.690325, 17.815385, 0), App.Vector(-23.578205, 17.815385, 0)), False)  # 27
add_polygon(sketch4, [(-8.761538, 22.7), (-15.6, 22.7), (-15.6, 10), (-8.761538, 10), (-8.761538, 12.279487), (-13.320513, 12.279487), (-13.320513, 15.698718), (-8.761538, 15.698718), (-8.761538, 17.978205), (-13.320513, 17.978205), (-13.320513, 20.420513), (-8.761538, 20.420513)])  # lines 28-39
add_polygon(sketch4, [(-0.457692, 22.7), (-2.571815, 22.7), (-7.703205, 10), (-5.271074, 10), (-4.283974, 12.605128), (1.249379, 12.605128), (2.236478, 10), (4.671154, 10)])  # lines 40-47
add_polygon(sketch4, [(-1.516026, 19.29349), (0.386939, 14.884615), (-3.41899, 14.884615)])  # lines 48-50
add_polygon(sketch4, [(12.079487, 22.7), (5.241026, 22.7), (5.241026, 20.420513), (7.520513, 20.420513), (7.520513, 10), (9.8, 10), (9.8, 20.420513), (12.079487, 20.420513)])  # lines 51-58
add_polygon(sketch4, [(13.544872, 22.7), (13.544872, 10), (15.824359, 10), (15.824359, 22.7)])  # lines 59-62
sketch4.addGeometry(Part.BSplineCurve([App.Vector(14.760938, 26.119231, 0), App.Vector(14.843654, 26.11488, 0), App.Vector(15.005099, 26.106389, 0), App.Vector(15.237037, 26.038095, 0), App.Vector(15.447997, 25.922946, 0), App.Vector(15.633158, 25.765172, 0), App.Vector(15.790104, 25.580457, 0), App.Vector(15.906108, 25.371805, 0), App.Vector(15.974067, 25.143086, 0), App.Vector(15.982752, 24.984176, 0), App.Vector(15.987179, 24.903165, 0)], [4, 1, 1, 1, 1, 1, 1, 1, 4], [0, 1.033757622, 2.017676021, 2.99585523, 4.020311853, 5.044768476, 6.013636162, 6.987373143, 8], False, 3, [1, 1, 1, 1, 1, 1, 1, 1, 1, 1, 1], False), False)  # 63
sketch4.addGeometry(Part.BSplineCurve([App.Vector(13.544872, 24.903165, 0), App.Vector(13.549311, 24.984166, 0), App.Vector(13.558018, 25.143058, 0), App.Vector(13.625814, 25.371912, 0), App.Vector(13.742176, 25.57957, 0), App.Vector(13.89619, 25.765994, 0), App.Vector(14.081642, 25.922876, 0), App.Vector(14.291766, 26.037548, 0), App.Vector(14.520967, 26.106222, 0), App.Vector(14.67991, 26.114838, 0), App.Vector(14.760938, 26.119231, 0)], [4, 1, 1, 1, 1, 1, 1, 1, 4], [0, 1.017471896, 1.995867844, 2.969371198, 3.991914463, 5.021272727, 6.004132156, 6.982528104, 8], False, 3, [1, 1, 1, 1, 1, 1, 1, 1, 1, 1, 1], False), False)  # 64
sketch4.addGeometry(Part.BSplineCurve([App.Vector(14.760938, 23.676923, 0), App.Vector(14.679919, 23.681326, 0), App.Vector(14.520993, 23.689964, 0), App.Vector(14.29167, 23.758483, 0), App.Vector(14.082491, 23.87349, 0), App.Vector(13.895548, 24.027563, 0), App.Vector(13.740663, 24.214965, 0), App.Vector(13.62649, 24.42643, 0), App.Vector(13.557643, 24.65898, 0), App.Vector(13.549198, 24.820441, 0), App.Vector(13.544872, 24.903165, 0)], [4, 1, 1, 1, 1, 1, 1, 1, 4], [0, 1.011983718, 1.98510226, 2.962660208, 3.97968794, 4.996715672, 5.983605444, 6.966898937, 8], False, 3, [1, 1, 1, 1, 1, 1, 1, 1, 1, 1, 1], False), False)  # 65
sketch4.addGeometry(Part.BSplineCurve([App.Vector(15.987179, 24.903165, 0), App.Vector(15.982865, 24.820431, 0), App.Vector(15.974443, 24.658951, 0), App.Vector(15.90543, 24.426539, 0), App.Vector(15.791634, 24.214067, 0), App.Vector(15.633808, 24.028377, 0), App.Vector(15.447149, 23.873419, 0), App.Vector(15.237134, 23.757934, 0), App.Vector(15.005074, 23.689798, 0), App.Vector(14.843645, 23.681285, 0), App.Vector(14.760938, 23.676923, 0)], [4, 1, 1, 1, 1, 1, 1, 1, 4], [0, 1.028208009, 2.006844351, 2.989059939, 4.008016881, 5.020227687, 5.993155649, 6.971791991, 8], False, 3, [1, 1, 1, 1, 1, 1, 1, 1, 1, 1, 1], False), False)  # 66
add_polygon(sketch4, [(20.808193, 22.7), (18.755128, 22.7), (18.755128, 10), (21.034615, 10), (21.034615, 18.331831), (26.781671, 10), (28.85, 10), (28.85, 22.7), (26.570513, 22.7), (26.570513, 14.342728)])  # lines 67-76
add_polygon(sketch4, [(33.258874, 22.7), (30.722436, 22.7), (34.385897, 15.50028), (34.385897, 10), (36.665385, 10), (36.665385, 15.50028), (40.328846, 22.7), (37.792408, 22.7), (35.525641, 18.245333)])  # lines 77-85
sketch4.addConstraint([
    Sketcher.Constraint("Block", 4),
    Sketcher.Constraint("Block", 5),
    Sketcher.Constraint("Block", 6),
    Sketcher.Constraint("Block", 7),
    Sketcher.Constraint("Block", 9),
    Sketcher.Constraint("Block", 10),
    Sketcher.Constraint("Block", 11),
    Sketcher.Constraint("Block", 12),
    Sketcher.Constraint("Block", 21),
    Sketcher.Constraint("Block", 22),
    Sketcher.Constraint("Block", 25),
    Sketcher.Constraint("Block", 26),
    Sketcher.Constraint("Block", 63),
    Sketcher.Constraint("Block", 64),
    Sketcher.Constraint("Block", 65),
    Sketcher.Constraint("Block", 66),
    Sketcher.Constraint("Coincident", 0, 2, 1, 1),
    Sketcher.Constraint("Coincident", 1, 2, 2, 1),
    Sketcher.Constraint("Coincident", 2, 2, 0, 1),
    Sketcher.Constraint("Coincident", 3, 2, 4, 2),
    Sketcher.Constraint("Coincident", 7, 1, 8, 1),
    Sketcher.Constraint("Coincident", 8, 2, 9, 2),
    Sketcher.Constraint("Coincident", 12, 1, 3, 1),
    Sketcher.Constraint("Coincident", 13, 2, 14, 1),
    Sketcher.Constraint("Coincident", 14, 2, 15, 1),
    Sketcher.Constraint("Coincident", 15, 2, 16, 1),
    Sketcher.Constraint("Coincident", 16, 2, 17, 1),
    Sketcher.Constraint("Coincident", 17, 2, 18, 1),
    Sketcher.Constraint("Coincident", 18, 2, 19, 1),
    Sketcher.Constraint("Coincident", 19, 2, 20, 1),
    Sketcher.Constraint("Coincident", 20, 2, 21, 2),
    Sketcher.Constraint("Coincident", 22, 1, 13, 1),
    Sketcher.Constraint("Coincident", 23, 2, 24, 1),
    Sketcher.Constraint("Coincident", 24, 2, 25, 2),
    Sketcher.Constraint("Coincident", 26, 1, 27, 1),
    Sketcher.Constraint("Coincident", 27, 2, 23, 1),
    Sketcher.Constraint("Vertical", 0),
    Sketcher.Constraint("Horizontal", 13),
    Sketcher.Constraint("Vertical", 14),
    Sketcher.Constraint("Horizontal", 15),
    Sketcher.Constraint("Vertical", 16),
    Sketcher.Constraint("Horizontal", 17),
    Sketcher.Constraint("Horizontal", 19),
    Sketcher.Constraint("Vertical", 23),
    Sketcher.Constraint("Horizontal", 24),
    Sketcher.Constraint("Horizontal", 27),
    Sketcher.Constraint("Horizontal", 28),
    Sketcher.Constraint("Vertical", 29),
    Sketcher.Constraint("Horizontal", 30),
    Sketcher.Constraint("Vertical", 31),
    Sketcher.Constraint("Horizontal", 32),
    Sketcher.Constraint("Vertical", 33),
    Sketcher.Constraint("Horizontal", 34),
    Sketcher.Constraint("Vertical", 35),
    Sketcher.Constraint("Horizontal", 36),
    Sketcher.Constraint("Vertical", 37),
    Sketcher.Constraint("Horizontal", 38),
    Sketcher.Constraint("Vertical", 39),
    Sketcher.Constraint("Horizontal", 40),
    Sketcher.Constraint("Horizontal", 42),
    Sketcher.Constraint("Horizontal", 44),
    Sketcher.Constraint("Horizontal", 46),
    Sketcher.Constraint("Horizontal", 49),
    Sketcher.Constraint("Horizontal", 51),
    Sketcher.Constraint("Vertical", 52),
    Sketcher.Constraint("Horizontal", 53),
    Sketcher.Constraint("Vertical", 54),
    Sketcher.Constraint("Horizontal", 55),
    Sketcher.Constraint("Vertical", 56),
    Sketcher.Constraint("Horizontal", 57),
    Sketcher.Constraint("Vertical", 58),
    Sketcher.Constraint("Vertical", 59),
    Sketcher.Constraint("Horizontal", 60),
    Sketcher.Constraint("Vertical", 61),
    Sketcher.Constraint("Horizontal", 62),
    Sketcher.Constraint("Horizontal", 67),
    Sketcher.Constraint("Vertical", 68),
    Sketcher.Constraint("Horizontal", 69),
    Sketcher.Constraint("Vertical", 70),
    Sketcher.Constraint("Horizontal", 72),
    Sketcher.Constraint("Vertical", 73),
    Sketcher.Constraint("Horizontal", 74),
    Sketcher.Constraint("Vertical", 75),
    Sketcher.Constraint("Horizontal", 77),
    Sketcher.Constraint("Vertical", 79),
    Sketcher.Constraint("Horizontal", 80),
    Sketcher.Constraint("Vertical", 81),
    Sketcher.Constraint("Horizontal", 83),
    Sketcher.Constraint("PointOnObject", 1, 3, -1),
    Sketcher.Constraint("PointOnObject", 1, 2, -1),
    Sketcher.Constraint("Radius", 2, Q("30 mm")),
    Sketcher.Constraint("Radius", 1, Q("7.24 mm")),
    Sketcher.Constraint("DistanceY", 14, 2, 14, 1, Q("12.7 mm")),
    Sketcher.Constraint("DistanceY", 29, 2, 29, 1, Q("12.7 mm")),
    Sketcher.Constraint("DistanceY", 59, 2, 59, 1, Q("12.7 mm")),
    Sketcher.Constraint("DistanceY", 68, 2, 68, 1, Q("12.7 mm")),
    Sketcher.Constraint("DistanceY", 73, 1, 73, 2, Q("12.7 mm")),
    Sketcher.Constraint("DistanceX", -1, 1, 0, 2, Q("45 mm")),
    Sketcher.Constraint("DistanceY", -1, 1, 18, 2, Q("10 mm")),
    Sketcher.Constraint("DistanceY", -1, 1, 29, 2, Q("10 mm")),
    Sketcher.Constraint("DistanceY", -1, 1, 41, 2, Q("10 mm")),
    Sketcher.Constraint("DistanceY", -1, 1, 45, 2, Q("10 mm")),
    Sketcher.Constraint("DistanceY", -1, 1, 54, 2, Q("10 mm")),
    Sketcher.Constraint("DistanceY", -1, 1, 59, 2, Q("10 mm")),
    Sketcher.Constraint("DistanceY", -1, 1, 68, 2, Q("10 mm")),
    Sketcher.Constraint("DistanceY", -1, 1, 71, 2, Q("10 mm")),
    Sketcher.Constraint("DistanceY", -1, 1, 79, 2, Q("10 mm")),
    Sketcher.Constraint("DistanceY", 2, 2, -1, 1, Q("22.5 mm")),
    Sketcher.Constraint("DistanceX", 28, 2, -1, 1, Q("15.6 mm")),
    Sketcher.Constraint("DistanceY", -1, 1, 40, 2, Q("22.7 mm")),
    Sketcher.Constraint("DistanceY", -1, 1, 51, 2, Q("22.7 mm")),
    Sketcher.Constraint("DistanceX", -1, 1, 55, 2, Q("9.8 mm")),
    Sketcher.Constraint("DistanceY", -1, 1, 77, 2, Q("22.7 mm")),
    Sketcher.Constraint("DistanceY", -1, 1, 82, 2, Q("22.7 mm")),
    Sketcher.Constraint("DistanceX", -1, 1, 72, 2, Q("28.85 mm")),
    Sketcher.Constraint("DistanceX", 13, 2, 13, 1, Q("2.65601 mm")),
    Sketcher.Constraint("DistanceX", 24, 1, 24, 2, Q("0.775942 mm")),
    Sketcher.Constraint("DistanceX", 28, 2, 28, 1, Q("6.838462 mm")),
    Sketcher.Constraint("DistanceX", 30, 1, 30, 2, Q("6.838462 mm")),
    Sketcher.Constraint("DistanceX", 42, 1, 42, 2, Q("2.432131 mm")),
    Sketcher.Constraint("DistanceX", 49, 2, 49, 1, Q("3.805929 mm")),
    Sketcher.Constraint("DistanceX", 51, 2, 51, 1, Q("6.838462 mm")),
    Sketcher.Constraint("DistanceX", 72, 1, 72, 2, Q("2.068329 mm")),
    Sketcher.Constraint("DistanceX", 77, 2, 77, 1, Q("2.536438 mm")),
    Sketcher.Constraint("DistanceX", 83, 2, 83, 1, Q("2.536438 mm")),
    Sketcher.Constraint("DistanceY", 33, 1, 33, 2, Q("3.419231 mm")),
    Sketcher.Constraint("DistanceY", 70, 1, 70, 2, Q("8.331831 mm")),
    Sketcher.Constraint("DistanceY", 75, 2, 75, 1, Q("8.357272 mm")),
    Sketcher.Constraint("DistanceY", 79, 2, 79, 1, Q("5.50028 mm")),
    Sketcher.Constraint("DistanceY", 81, 1, 81, 2, Q("5.50028 mm")),
    Sketcher.Constraint("Distance", 76, Q("10.151272 mm")),
    Sketcher.Constraint("Distance", 84, Q("4.998229 mm")),
    Sketcher.Constraint("Distance", 85, Q("4.998229 mm")),
    Sketcher.Constraint("DistanceX", 15, 1, 15, 2, Q("2.279487 mm")),
    Sketcher.Constraint("DistanceX", 17, 1, 17, 2, Q("0.773397 mm")),
    Sketcher.Constraint("DistanceX", 19, 1, 19, 2, Q("2.533894 mm")),
    Sketcher.Constraint("DistanceX", 32, 2, 32, 1, Q("4.558974 mm")),
    Sketcher.Constraint("DistanceX", 34, 1, 34, 2, Q("4.558974 mm")),
    Sketcher.Constraint("DistanceX", 36, 2, 36, 1, Q("4.558974 mm")),
    Sketcher.Constraint("DistanceX", 40, 2, 40, 1, Q("2.114123 mm")),
    Sketcher.Constraint("DistanceX", 44, 1, 44, 2, Q("5.533353 mm")),
    Sketcher.Constraint("DistanceX", 46, 1, 46, 2, Q("2.434675 mm")),
    Sketcher.Constraint("DistanceX", 53, 1, 53, 2, Q("2.279487 mm")),
    Sketcher.Constraint("DistanceX", 55, 1, 55, 2, Q("2.279487 mm")),
    Sketcher.Constraint("DistanceX", 60, 1, 60, 2, Q("2.279487 mm")),
    Sketcher.Constraint("DistanceX", 67, 2, 67, 1, Q("2.053065 mm")),
    Sketcher.Constraint("DistanceX", 69, 1, 69, 2, Q("2.279487 mm")),
    Sketcher.Constraint("DistanceX", 74, 2, 74, 1, Q("2.279487 mm")),
    Sketcher.Constraint("DistanceX", 80, 1, 80, 2, Q("2.279487 mm")),
    Sketcher.Constraint("DistanceY", 0, 1, 0, 2, Q("20.710834 mm")),
    Sketcher.Constraint("DistanceY", 16, 1, 16, 2, Q("5.535897 mm")),
    Sketcher.Constraint("DistanceY", 31, 1, 31, 2, Q("2.279487 mm")),
    Sketcher.Constraint("DistanceY", 35, 1, 35, 2, Q("2.279487 mm")),
    Sketcher.Constraint("DistanceY", 37, 1, 37, 2, Q("2.442308 mm")),
    Sketcher.Constraint("DistanceY", 52, 2, 52, 1, Q("2.279487 mm")),
    Sketcher.Constraint("DistanceY", 56, 1, 56, 2, Q("10.420513 mm")),
    Sketcher.Constraint("DistanceX", 18, 2, -1, 1, Q("20.00633 mm")),
    Sketcher.Constraint("DistanceY", -1, 1, 43, 2, Q("12.605128 mm")),
    Sketcher.Constraint("DistanceX", -1, 1, 44, 2, Q("1.249379 mm")),
    Sketcher.Constraint("DistanceX", -1, 1, 45, 2, Q("2.236478 mm")),
    Sketcher.Constraint("DistanceX", -1, 1, 48, 2, Q("0.386939 mm")),
    Sketcher.Constraint("DistanceY", -1, 1, 50, 2, Q("19.29349 mm")),
    Sketcher.Constraint("DistanceX", -1, 1, 59, 2, Q("13.544872 mm")),
    Sketcher.Constraint("DistanceX", -1, 1, 84, 2, Q("35.525641 mm")),
    Sketcher.Constraint("Distance", 41, Q("13.697488 mm")),
    Sketcher.Constraint("Distance", 43, Q("2.785868 mm")),
    Sketcher.Constraint("Distance", 48, Q("4.802025 mm")),
    Sketcher.Constraint("Distance", 50, Q("4.802025 mm")),
    Sketcher.Constraint("Distance", 78, Q("8.078175 mm")),
    Sketcher.Constraint("Distance", 82, Q("8.078175 mm")),
])
sketch4.setExpression("Constraints[144]", "Params.sketch4_radius")
sketch4.setExpression("Constraints[145]", "Params.sketch4_radius2")
sketch4.setExpression("Constraints[146]", "Params.sketch4_height")
sketch4.setExpression("Constraints[147]", "Params.sketch4_height2")
sketch4.setExpression("Constraints[148]", "Params.sketch4_height3")
pad3 = doc.addObject("PartDesign::Pad", "Pad002")
body.addObject(pad3)
pad3.Profile = sketch4
pad3.setExpression("Length", "Params.pad3_length")

doc.recompute()
